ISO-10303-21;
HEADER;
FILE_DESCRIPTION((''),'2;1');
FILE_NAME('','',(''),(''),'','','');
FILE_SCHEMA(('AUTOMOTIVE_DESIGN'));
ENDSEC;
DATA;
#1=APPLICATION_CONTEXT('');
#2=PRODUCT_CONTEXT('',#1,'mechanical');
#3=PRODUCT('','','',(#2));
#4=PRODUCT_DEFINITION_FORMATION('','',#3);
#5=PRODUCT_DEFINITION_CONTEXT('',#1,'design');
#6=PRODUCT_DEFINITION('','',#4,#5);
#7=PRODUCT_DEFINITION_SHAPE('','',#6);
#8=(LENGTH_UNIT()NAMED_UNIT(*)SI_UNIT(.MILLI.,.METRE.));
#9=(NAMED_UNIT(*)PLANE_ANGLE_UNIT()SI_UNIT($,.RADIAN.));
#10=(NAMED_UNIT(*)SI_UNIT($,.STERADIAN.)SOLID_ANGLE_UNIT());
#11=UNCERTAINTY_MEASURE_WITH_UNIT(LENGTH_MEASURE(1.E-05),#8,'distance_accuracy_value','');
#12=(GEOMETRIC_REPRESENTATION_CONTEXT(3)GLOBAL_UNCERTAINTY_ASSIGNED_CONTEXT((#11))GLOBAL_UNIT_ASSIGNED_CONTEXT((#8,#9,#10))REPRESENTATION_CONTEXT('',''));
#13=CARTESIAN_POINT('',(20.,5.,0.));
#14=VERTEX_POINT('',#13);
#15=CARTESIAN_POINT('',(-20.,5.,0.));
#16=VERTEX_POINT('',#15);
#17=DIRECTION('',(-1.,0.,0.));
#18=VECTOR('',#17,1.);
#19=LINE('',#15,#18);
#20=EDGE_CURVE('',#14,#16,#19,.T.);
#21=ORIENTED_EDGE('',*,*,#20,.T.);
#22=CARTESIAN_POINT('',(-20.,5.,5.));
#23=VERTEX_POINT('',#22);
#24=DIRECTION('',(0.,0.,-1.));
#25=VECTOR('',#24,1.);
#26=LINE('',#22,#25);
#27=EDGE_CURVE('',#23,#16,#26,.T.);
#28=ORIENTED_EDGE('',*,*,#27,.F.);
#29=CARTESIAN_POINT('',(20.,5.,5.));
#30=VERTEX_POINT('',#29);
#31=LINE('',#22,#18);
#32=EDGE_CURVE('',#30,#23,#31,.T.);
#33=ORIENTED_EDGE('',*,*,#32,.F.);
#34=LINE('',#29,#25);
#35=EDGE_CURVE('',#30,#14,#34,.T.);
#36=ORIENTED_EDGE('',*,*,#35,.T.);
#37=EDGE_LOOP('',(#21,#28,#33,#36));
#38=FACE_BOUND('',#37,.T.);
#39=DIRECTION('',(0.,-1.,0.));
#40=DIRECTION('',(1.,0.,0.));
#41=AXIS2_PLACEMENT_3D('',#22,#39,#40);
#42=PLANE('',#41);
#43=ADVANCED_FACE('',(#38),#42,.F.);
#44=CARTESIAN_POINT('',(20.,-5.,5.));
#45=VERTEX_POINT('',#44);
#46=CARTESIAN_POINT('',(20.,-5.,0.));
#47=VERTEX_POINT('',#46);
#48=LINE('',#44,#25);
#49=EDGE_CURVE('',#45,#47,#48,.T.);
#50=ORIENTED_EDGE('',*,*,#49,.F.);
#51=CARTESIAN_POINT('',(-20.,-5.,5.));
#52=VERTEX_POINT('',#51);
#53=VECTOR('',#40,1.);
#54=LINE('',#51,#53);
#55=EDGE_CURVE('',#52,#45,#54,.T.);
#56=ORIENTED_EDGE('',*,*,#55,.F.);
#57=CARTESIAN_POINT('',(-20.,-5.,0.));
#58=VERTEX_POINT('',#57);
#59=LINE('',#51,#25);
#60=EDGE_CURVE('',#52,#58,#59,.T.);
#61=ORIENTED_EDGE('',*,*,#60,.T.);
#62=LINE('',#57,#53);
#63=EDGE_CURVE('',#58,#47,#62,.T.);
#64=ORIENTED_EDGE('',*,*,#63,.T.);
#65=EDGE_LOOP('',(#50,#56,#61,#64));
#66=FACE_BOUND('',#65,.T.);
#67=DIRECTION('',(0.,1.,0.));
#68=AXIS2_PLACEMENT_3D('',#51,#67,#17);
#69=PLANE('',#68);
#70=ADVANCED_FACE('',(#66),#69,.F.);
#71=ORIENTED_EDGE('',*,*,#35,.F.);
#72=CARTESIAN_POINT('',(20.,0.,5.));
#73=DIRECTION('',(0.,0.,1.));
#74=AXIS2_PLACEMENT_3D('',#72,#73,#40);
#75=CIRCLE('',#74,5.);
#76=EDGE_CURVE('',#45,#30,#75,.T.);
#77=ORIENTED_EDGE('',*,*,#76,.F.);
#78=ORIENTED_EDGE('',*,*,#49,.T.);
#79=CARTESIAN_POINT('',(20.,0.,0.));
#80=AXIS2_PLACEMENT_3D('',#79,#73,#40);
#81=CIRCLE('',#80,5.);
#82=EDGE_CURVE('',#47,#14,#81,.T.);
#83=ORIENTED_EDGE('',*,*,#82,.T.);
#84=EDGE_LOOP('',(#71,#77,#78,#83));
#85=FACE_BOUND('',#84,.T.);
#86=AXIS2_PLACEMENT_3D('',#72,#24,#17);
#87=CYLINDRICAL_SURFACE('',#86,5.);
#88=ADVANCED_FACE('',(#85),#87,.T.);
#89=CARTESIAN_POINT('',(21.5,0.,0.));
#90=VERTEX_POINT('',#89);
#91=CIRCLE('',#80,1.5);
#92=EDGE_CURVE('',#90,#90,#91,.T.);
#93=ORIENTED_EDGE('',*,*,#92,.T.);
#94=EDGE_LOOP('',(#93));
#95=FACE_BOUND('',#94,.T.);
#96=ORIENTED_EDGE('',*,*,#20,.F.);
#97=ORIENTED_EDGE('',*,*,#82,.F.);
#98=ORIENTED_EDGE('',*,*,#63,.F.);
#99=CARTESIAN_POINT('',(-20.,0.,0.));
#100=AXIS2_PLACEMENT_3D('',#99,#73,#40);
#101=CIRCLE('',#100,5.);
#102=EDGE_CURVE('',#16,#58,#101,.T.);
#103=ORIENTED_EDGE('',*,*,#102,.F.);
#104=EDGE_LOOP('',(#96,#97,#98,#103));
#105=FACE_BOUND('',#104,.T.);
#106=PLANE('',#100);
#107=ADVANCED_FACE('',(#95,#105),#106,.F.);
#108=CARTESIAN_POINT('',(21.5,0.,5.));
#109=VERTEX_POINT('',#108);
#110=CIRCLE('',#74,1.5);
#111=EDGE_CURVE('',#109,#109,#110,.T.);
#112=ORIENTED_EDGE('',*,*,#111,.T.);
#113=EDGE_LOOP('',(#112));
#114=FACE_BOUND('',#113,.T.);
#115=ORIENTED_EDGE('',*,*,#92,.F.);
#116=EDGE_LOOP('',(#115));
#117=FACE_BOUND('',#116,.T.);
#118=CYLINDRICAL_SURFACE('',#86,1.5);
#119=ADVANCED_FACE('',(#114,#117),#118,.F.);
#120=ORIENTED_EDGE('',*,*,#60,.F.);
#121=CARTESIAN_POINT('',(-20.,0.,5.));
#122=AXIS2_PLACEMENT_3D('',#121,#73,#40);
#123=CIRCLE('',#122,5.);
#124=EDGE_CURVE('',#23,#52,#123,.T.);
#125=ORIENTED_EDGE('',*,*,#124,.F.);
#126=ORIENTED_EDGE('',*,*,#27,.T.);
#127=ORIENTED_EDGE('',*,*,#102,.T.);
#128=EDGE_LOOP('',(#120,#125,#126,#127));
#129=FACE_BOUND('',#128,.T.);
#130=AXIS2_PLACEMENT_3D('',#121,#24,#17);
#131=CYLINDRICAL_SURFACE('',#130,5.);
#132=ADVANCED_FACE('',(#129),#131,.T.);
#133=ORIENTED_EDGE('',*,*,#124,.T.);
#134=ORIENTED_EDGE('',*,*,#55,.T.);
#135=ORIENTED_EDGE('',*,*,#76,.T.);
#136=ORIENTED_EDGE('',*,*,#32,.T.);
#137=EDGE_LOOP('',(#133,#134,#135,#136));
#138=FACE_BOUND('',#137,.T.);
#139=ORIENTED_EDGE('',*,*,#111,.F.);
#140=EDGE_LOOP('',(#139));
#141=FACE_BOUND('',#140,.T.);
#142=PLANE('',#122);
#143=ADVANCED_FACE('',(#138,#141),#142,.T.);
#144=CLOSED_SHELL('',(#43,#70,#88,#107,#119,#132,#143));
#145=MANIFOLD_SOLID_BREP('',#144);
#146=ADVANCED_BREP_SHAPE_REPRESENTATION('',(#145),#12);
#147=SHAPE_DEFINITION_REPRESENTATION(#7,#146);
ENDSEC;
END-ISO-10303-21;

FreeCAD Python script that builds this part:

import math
import FreeCAD as App
import Part
import Sketcher
from FreeCAD import Vector
Q = App.Units.Quantity

doc = App.newDocument("Part")
params = doc.addObject("Spreadsheet::Sheet", "Params")
for row, (alias, value) in enumerate([
    ("sketch1_diameter", "3 mm"),
    ("sketch1_radius", "5 mm"),
    ("sketch1_width", "40 mm"),
    ("pad1_length", "5 mm"),
], start=1):
    params.set(f"A{row}", alias)
    params.set(f"B{row}", "=" + value)
    params.setAlias(f"B{row}", alias)

body = doc.addObject("PartDesign::Body", "Body")

# Sketch on XY plane
sketch1 = body.newObject("Sketcher::SketchObject", "Sketch")
sketch1.AttachmentSupport = (doc.getObject("XY_Plane"), [""])
sketch1.MapMode = "FlatFace"
sketch1.addGeometry([
    Part.LineSegment(Vector(20, 5, 0), Vector(-20, 5, 0)),  # 0
    Part.ArcOfCircle(Part.Circle(Vector(-20, 0, 0), Vector(0, 0, 1), 5), math.radians(90), math.radians(270)),  # 1
    Part.LineSegment(Vector(-20, -5, 0), Vector(20, -5, 0)),  # 2
    Part.ArcOfCircle(Part.Circle(Vector(20, 0, 0), Vector(0, 0, 1), 5), math.radians(-90), math.radians(90)),  # 3
    Part.Circle(Vector(20, 0, 0), Vector(0, 0, 1), 1.5),  # 4
], False)
sketch1.addConstraint([
    Sketcher.Constraint("Tangent", 0, 2, 1, 1),
    Sketcher.Constraint("Tangent", 1, 2, 2, 1),
    Sketcher.Constraint("Tangent", 2, 2, 3, 1),
    Sketcher.Constraint("Tangent", 3, 2, 0, 1),
    Sketcher.Constraint("Horizontal", 0),
    Sketcher.Constraint("Horizontal", 2),
    Sketcher.Constraint("Coincident", 4, 3, 3, 3),
    Sketcher.Constraint("Symmetric", 1, 3, 3, 3, -1, 1),
    Sketcher.Constraint("Diameter", 4, Q("3 mm")),
    Sketcher.Constraint("Radius", 1, Q("5 mm")),
    Sketcher.Constraint("DistanceX", 0, 2, 0, 1, Q("40 mm")),
])
sketch1.setExpression("Constraints[8]", "Params.sketch1_diameter")
sketch1.setExpression("Constraints[9]", "Params.sketch1_radius")
sketch1.setExpression("Constraints[10]", "Params.sketch1_width")
pad1 = body.newObject("PartDesign::Pad", "Pad")
pad1.Profile = sketch1
pad1.setExpression("Length", "Params.pad1_length")

doc.recompute()
